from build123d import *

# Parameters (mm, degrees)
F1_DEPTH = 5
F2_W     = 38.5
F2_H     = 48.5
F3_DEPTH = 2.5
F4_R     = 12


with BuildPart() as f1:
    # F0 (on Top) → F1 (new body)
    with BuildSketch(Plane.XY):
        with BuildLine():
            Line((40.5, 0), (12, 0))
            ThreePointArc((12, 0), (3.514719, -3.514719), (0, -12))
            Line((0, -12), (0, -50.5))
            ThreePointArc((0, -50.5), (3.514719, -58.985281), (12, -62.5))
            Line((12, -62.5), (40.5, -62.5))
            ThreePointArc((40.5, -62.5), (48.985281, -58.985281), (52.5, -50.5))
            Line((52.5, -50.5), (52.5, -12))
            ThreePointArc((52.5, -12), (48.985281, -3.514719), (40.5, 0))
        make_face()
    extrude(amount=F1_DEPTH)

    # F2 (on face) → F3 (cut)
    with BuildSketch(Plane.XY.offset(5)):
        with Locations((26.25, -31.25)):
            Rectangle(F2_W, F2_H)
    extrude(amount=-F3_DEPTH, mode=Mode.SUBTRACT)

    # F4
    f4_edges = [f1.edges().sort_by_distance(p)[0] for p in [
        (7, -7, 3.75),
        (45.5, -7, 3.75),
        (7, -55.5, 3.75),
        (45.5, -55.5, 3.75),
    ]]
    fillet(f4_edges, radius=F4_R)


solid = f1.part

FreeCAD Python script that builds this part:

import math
import FreeCAD as App
import Part
import Sketcher
from FreeCAD import Vector


def edges_at(feature, points):
    """Names of the edges that pass closest to the given points."""
    edges = feature.Shape.Edges
    near = lambda p: min(range(len(edges)), key=lambda i: edges[i].distToShape(Part.Vertex(*p))[0])
    return sorted({f"Edge{near(p) + 1}" for p in points})

doc = App.newDocument("Part")
body = doc.addObject("PartDesign::Body", "Body")

sketch1 = body.newObject("Sketcher::SketchObject", "Sketch")
sketch1.AttachmentSupport = (doc.getObject("XY_Plane"), [""])
sketch1.MapMode = "FlatFace"
sketch1.addGeometry(Part.LineSegment(Vector(40, 0, 0), Vector(12, 0, 0)), False)
sketch1.addGeometry(Part.ArcOfCircle(Part.Circle(Vector(12, -12, 0), Vector(0, 0, 1), 12), math.radians(90), math.radians(180)), False)
sketch1.addGeometry(Part.LineSegment(Vector(0, -12, 0), Vector(0, -50, 0)), False)
sketch1.addGeometry(Part.ArcOfCircle(Part.Circle(Vector(12, -50, 0), Vector(0, 0, 1), 12), math.radians(-180), math.radians(-90)), False)
sketch1.addGeometry(Part.LineSegment(Vector(12, -62, 0), Vector(40, -62, 0)), False)
sketch1.addGeometry(Part.ArcOfCircle(Part.Circle(Vector(40, -50, 0), Vector(0, 0, 1), 12), math.radians(-90), math.radians(0)), False)
sketch1.addGeometry(Part.LineSegment(Vector(52, -50, 0), Vector(52, -12, 0)), False)
sketch1.addGeometry(Part.ArcOfCircle(Part.Circle(Vector(40, -12, 0), Vector(0, 0, 1), 12), math.radians(0), math.radians(90)), False)
sketch1.addConstraint(Sketcher.Constraint("Tangent", 0, 2, 1, 1))
sketch1.addConstraint(Sketcher.Constraint("Tangent", 1, 2, 2, 1))
sketch1.addConstraint(Sketcher.Constraint("Tangent", 2, 2, 3, 1))
sketch1.addConstraint(Sketcher.Constraint("Tangent", 3, 2, 4, 1))
sketch1.addConstraint(Sketcher.Constraint("Tangent", 4, 2, 5, 1))
sketch1.addConstraint(Sketcher.Constraint("Tangent", 5, 2, 6, 1))
sketch1.addConstraint(Sketcher.Constraint("Tangent", 6, 2, 7, 1))
sketch1.addConstraint(Sketcher.Constraint("Tangent", 7, 2, 0, 1))
sketch1.addConstraint(Sketcher.Constraint("Horizontal", 0))
sketch1.addConstraint(Sketcher.Constraint("Vertical", 2))
sketch1.addConstraint(Sketcher.Constraint("Horizontal", 4))
sketch1.addConstraint(Sketcher.Constraint("Vertical", 6))
sketch1.addConstraint(Sketcher.Constraint("Equal", 1, 3))
sketch1.addConstraint(Sketcher.Constraint("Equal", 3, 5))
sketch1.addConstraint(Sketcher.Constraint("Equal", 5, 7))
sketch1.addConstraint(Sketcher.Constraint("PointOnObject", 0, 2, -1))
sketch1.addConstraint(Sketcher.Constraint("PointOnObject", 1, 2, -2))
sketch1.addConstraint(Sketcher.Constraint("Radius", 1, 12.000001))
sketch1.addConstraint(Sketcher.Constraint("DistanceX", 0, 2, 0, 1, 28.5))
sketch1.addConstraint(Sketcher.Constraint("DistanceY", 2, 2, 2, 1, 38.5))
pad1 = body.newObject("PartDesign::Pad", "Pad")
pad1.Profile = sketch1
pad1.Length = 5

sketch2 = body.newObject("Sketcher::SketchObject", "Sketch001")
sketch2.AttachmentSupport = (doc.getObject("XY_Plane"), [""])
sketch2.MapMode = "FlatFace"
sketch2.AttachmentOffset = App.Placement(Vector(0, 0, 5), App.Rotation())
sketch2.addGeometry(Part.LineSegment(Vector(7, -7, 0), Vector(7, -56, 0)), False)
sketch2.addGeometry(Part.LineSegment(Vector(7, -56, 0), Vector(46, -56, 0)), False)
sketch2.addGeometry(Part.LineSegment(Vector(46, -56, 0), Vector(46, -7, 0)), False)
sketch2.addGeometry(Part.LineSegment(Vector(46, -7, 0), Vector(7, -7, 0)), False)
sketch2.addConstraint(Sketcher.Constraint("Coincident", 0, 2, 1, 1))
sketch2.addConstraint(Sketcher.Constraint("Coincident", 1, 2, 2, 1))
sketch2.addConstraint(Sketcher.Constraint("Coincident", 2, 2, 3, 1))
sketch2.addConstraint(Sketcher.Constraint("Coincident", 3, 2, 0, 1))
sketch2.addConstraint(Sketcher.Constraint("Vertical", 0))
sketch2.addConstraint(Sketcher.Constraint("Horizontal", 1))
sketch2.addConstraint(Sketcher.Constraint("Vertical", 2))
sketch2.addConstraint(Sketcher.Constraint("Horizontal", 3))
sketch2.addConstraint(Sketcher.Constraint("DistanceX", 1, 1, 1, 2, 38.5))
sketch2.addConstraint(Sketcher.Constraint("DistanceY", 0, 2, 0, 1, 48.5))
sketch2.addConstraint(Sketcher.Constraint("DistanceX", -1, 1, 0, 2, 7.0))
sketch2.addConstraint(Sketcher.Constraint("DistanceY", 2, 2, -1, 1, 7.0))
pocket1 = body.newObject("PartDesign::Pocket", "Pocket")
pocket1.Profile = sketch2
pocket1.Length = 2.5
doc.recompute()

fillet = body.newObject("PartDesign::Fillet", "Fillet")
fillet.Base = (pocket1, edges_at(pocket1, [
    (7, -7, 3.75),
    (45.5, -7, 3.75),
    (7, -55.5, 3.75),
    (45.5, -55.5, 3.75),
]))
fillet.Radius = 12

doc.recompute()
